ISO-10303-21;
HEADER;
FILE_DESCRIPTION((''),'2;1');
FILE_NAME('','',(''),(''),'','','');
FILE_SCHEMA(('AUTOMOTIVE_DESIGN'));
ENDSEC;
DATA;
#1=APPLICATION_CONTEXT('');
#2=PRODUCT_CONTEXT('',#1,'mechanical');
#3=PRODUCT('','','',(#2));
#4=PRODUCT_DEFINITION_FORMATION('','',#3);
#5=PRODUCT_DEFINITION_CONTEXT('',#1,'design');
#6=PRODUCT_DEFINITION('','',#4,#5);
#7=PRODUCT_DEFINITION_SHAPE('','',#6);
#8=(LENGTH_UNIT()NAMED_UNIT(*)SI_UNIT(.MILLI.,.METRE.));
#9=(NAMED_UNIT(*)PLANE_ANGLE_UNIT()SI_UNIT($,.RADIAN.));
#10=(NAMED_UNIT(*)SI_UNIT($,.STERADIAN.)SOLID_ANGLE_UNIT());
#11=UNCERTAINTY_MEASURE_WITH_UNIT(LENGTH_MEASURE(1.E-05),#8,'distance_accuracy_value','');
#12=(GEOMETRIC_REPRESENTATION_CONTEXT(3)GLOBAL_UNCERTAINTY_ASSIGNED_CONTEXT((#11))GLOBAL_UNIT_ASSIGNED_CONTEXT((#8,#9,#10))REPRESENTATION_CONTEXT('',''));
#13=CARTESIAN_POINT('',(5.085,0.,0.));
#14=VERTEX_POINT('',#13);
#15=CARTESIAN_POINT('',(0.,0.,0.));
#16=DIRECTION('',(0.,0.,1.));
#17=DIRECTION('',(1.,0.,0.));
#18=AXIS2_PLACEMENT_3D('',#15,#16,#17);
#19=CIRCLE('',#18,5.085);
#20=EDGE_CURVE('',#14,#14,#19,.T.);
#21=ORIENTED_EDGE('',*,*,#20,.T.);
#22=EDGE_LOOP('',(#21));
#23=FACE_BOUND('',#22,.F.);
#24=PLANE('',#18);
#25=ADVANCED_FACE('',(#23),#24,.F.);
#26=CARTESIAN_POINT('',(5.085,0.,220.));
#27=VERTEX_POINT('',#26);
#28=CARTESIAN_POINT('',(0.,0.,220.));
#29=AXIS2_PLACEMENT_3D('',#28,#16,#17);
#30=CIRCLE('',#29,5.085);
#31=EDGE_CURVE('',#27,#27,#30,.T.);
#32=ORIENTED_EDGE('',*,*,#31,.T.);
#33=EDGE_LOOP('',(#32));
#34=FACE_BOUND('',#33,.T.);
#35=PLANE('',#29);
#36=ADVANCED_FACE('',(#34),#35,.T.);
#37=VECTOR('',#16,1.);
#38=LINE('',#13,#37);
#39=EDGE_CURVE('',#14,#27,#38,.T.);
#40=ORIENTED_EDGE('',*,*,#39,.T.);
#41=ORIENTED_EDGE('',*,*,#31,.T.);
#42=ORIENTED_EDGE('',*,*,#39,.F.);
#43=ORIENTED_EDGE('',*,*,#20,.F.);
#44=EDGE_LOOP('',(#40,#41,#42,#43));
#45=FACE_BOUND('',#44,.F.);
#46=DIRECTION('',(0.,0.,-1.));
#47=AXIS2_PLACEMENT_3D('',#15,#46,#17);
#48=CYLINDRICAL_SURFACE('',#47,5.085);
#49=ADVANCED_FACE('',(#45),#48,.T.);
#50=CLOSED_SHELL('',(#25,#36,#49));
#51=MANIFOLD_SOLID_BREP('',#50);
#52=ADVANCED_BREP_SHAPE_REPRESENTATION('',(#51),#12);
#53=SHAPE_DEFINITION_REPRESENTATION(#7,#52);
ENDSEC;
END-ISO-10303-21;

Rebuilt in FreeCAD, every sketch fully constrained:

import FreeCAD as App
import Part
import Sketcher

doc = App.newDocument("Part")
body = doc.addObject("PartDesign::Body", "Body")

# Sketch on XY plane
sketch1 = body.newObject("Sketcher::SketchObject", "Sketch")
sketch1.AttachmentSupport = (doc.getObject("XY_Plane"), [""])
sketch1.MapMode = "FlatFace"
sketch1.addGeometry(Part.Circle(App.Vector(0, 0, 0), App.Vector(0, 0, 1), 5), False)
sketch1.addConstraint([
    Sketcher.Constraint("Coincident", 0, 3, -1, 1),
    Sketcher.Constraint("Diameter", 0, 10.17),
])
pad1 = body.newObject("PartDesign::Pad", "Pad")
pad1.Profile = sketch1
pad1.Length = 220

doc.recompute()
